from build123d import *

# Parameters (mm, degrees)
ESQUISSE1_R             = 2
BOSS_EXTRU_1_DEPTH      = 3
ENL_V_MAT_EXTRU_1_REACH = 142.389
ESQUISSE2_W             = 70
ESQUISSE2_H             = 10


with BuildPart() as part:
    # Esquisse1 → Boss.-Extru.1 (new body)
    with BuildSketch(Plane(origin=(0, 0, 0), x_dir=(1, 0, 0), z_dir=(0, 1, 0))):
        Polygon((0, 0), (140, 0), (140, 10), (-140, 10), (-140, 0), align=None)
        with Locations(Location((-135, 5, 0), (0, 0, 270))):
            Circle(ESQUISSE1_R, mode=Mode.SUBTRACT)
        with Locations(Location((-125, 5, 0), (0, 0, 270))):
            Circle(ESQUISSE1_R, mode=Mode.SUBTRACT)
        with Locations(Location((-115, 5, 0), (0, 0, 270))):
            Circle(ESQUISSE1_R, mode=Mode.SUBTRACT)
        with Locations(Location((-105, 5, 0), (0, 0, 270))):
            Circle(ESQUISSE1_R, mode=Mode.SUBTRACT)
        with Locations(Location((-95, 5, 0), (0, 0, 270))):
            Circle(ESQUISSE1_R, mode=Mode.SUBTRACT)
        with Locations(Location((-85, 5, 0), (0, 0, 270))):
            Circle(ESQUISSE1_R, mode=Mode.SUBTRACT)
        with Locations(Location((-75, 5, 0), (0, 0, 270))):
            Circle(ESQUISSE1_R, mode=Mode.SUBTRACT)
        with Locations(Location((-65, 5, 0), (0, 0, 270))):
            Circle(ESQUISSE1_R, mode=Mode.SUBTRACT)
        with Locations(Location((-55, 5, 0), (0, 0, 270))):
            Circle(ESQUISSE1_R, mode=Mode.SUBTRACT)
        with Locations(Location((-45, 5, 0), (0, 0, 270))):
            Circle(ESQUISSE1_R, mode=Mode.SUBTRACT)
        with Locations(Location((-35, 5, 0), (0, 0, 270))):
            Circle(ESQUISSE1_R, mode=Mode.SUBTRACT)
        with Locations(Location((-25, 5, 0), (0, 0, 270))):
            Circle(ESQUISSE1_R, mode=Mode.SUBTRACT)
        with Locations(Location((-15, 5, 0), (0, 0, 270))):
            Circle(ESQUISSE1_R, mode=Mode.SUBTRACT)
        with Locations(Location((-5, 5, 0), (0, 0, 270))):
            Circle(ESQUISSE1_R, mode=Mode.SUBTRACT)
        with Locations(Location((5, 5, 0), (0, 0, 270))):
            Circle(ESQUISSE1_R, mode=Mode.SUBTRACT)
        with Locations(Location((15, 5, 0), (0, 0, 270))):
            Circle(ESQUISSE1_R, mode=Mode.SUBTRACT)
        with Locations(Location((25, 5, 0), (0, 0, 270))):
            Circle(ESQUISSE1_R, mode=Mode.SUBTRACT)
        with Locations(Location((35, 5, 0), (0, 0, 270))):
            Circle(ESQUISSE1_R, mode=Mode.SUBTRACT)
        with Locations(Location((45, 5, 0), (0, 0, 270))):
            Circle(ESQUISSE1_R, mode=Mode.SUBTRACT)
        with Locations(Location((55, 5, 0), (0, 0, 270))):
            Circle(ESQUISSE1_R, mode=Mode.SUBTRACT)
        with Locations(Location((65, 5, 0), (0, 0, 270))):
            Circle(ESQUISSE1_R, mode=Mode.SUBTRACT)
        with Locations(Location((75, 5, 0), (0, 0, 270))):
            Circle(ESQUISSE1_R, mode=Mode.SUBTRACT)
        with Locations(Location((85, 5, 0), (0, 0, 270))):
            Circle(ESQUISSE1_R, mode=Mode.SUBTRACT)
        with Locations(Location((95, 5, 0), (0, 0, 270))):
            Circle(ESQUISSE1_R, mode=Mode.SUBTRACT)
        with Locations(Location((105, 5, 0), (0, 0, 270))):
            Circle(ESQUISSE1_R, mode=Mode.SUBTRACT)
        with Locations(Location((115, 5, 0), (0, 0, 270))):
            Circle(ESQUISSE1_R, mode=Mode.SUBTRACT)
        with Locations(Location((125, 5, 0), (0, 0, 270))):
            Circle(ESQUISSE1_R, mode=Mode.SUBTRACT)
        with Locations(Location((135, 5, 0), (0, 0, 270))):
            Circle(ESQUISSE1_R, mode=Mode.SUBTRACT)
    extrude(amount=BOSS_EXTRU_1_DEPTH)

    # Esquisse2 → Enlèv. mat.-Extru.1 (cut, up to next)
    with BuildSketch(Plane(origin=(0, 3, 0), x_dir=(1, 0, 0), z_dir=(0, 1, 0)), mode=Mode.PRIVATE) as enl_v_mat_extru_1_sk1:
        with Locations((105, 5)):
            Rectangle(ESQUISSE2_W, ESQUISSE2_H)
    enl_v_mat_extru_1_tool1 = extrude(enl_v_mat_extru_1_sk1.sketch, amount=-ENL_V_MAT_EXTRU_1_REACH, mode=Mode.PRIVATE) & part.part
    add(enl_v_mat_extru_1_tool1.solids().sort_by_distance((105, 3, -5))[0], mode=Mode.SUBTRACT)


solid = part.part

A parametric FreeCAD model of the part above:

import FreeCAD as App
import Part
import Sketcher

V = App.Vector


def add_polygon(sketch, points):
    """Adds a closed chain of lines whose ends are joined by coincident constraints."""
    first, n = sketch.GeometryCount, len(points)
    for a, b in zip(points, points[1:] + points[:1]):
        sketch.addGeometry(Part.LineSegment(App.Vector(*a, 0), App.Vector(*b, 0)), False)
    for i in range(n):
        sketch.addConstraint(Sketcher.Constraint("Coincident", first + i, 2, first + (i + 1) % n, 1))

doc = App.newDocument("Part")
body = doc.addObject("PartDesign::Body", "Body")

# Sketch on XZ plane
sketch1 = body.newObject("Sketcher::SketchObject", "Sketch")
sketch1.AttachmentSupport = (doc.getObject("XZ_Plane"), [""])
sketch1.MapMode = "FlatFace"
add_polygon(sketch1, [(140, 0), (140, -10), (-140, -10), (-140, 0)])  # lines 0-3
sketch1.addGeometry(Part.Circle(V(-135, -5, 0), V(0, 0, 1), 2), False)  # 4
sketch1.addGeometry(Part.Circle(V(-125, -5, 0), V(0, 0, 1), 2), False)  # 5
sketch1.addGeometry(Part.Circle(V(-115, -5, 0), V(0, 0, 1), 2), False)  # 6
sketch1.addGeometry(Part.Circle(V(-105, -5, 0), V(0, 0, 1), 2), False)  # 7
sketch1.addGeometry(Part.Circle(V(-95, -5, 0), V(0, 0, 1), 2), False)  # 8
sketch1.addGeometry(Part.Circle(V(-85, -5, 0), V(0, 0, 1), 2), False)  # 9
sketch1.addGeometry(Part.Circle(V(-75, -5, 0), V(0, 0, 1), 2), False)  # 10
sketch1.addGeometry(Part.Circle(V(-65, -5, 0), V(0, 0, 1), 2), False)  # 11
sketch1.addGeometry(Part.Circle(V(-55, -5, 0), V(0, 0, 1), 2), False)  # 12
sketch1.addGeometry(Part.Circle(V(-45, -5, 0), V(0, 0, 1), 2), False)  # 13
sketch1.addGeometry(Part.Circle(V(-35, -5, 0), V(0, 0, 1), 2), False)  # 14
sketch1.addGeometry(Part.Circle(V(-25, -5, 0), V(0, 0, 1), 2), False)  # 15
sketch1.addGeometry(Part.Circle(V(-15, -5, 0), V(0, 0, 1), 2), False)  # 16
sketch1.addGeometry(Part.Circle(V(-5, -5, 0), V(0, 0, 1), 2), False)  # 17
sketch1.addGeometry(Part.Circle(V(5, -5, 0), V(0, 0, 1), 2), False)  # 18
sketch1.addGeometry(Part.Circle(V(15, -5, 0), V(0, 0, 1), 2), False)  # 19
sketch1.addGeometry(Part.Circle(V(25, -5, 0), V(0, 0, 1), 2), False)  # 20
sketch1.addGeometry(Part.Circle(V(35, -5, 0), V(0, 0, 1), 2), False)  # 21
sketch1.addGeometry(Part.Circle(V(45, -5, 0), V(0, 0, 1), 2), False)  # 22
sketch1.addGeometry(Part.Circle(V(55, -5, 0), V(0, 0, 1), 2), False)  # 23
sketch1.addGeometry(Part.Circle(V(65, -5, 0), V(0, 0, 1), 2), False)  # 24
sketch1.addGeometry(Part.Circle(V(75, -5, 0), V(0, 0, 1), 2), False)  # 25
sketch1.addGeometry(Part.Circle(V(85, -5, 0), V(0, 0, 1), 2), False)  # 26
sketch1.addGeometry(Part.Circle(V(95, -5, 0), V(0, 0, 1), 2), False)  # 27
sketch1.addGeometry(Part.Circle(V(105, -5, 0), V(0, 0, 1), 2), False)  # 28
sketch1.addGeometry(Part.Circle(V(115, -5, 0), V(0, 0, 1), 2), False)  # 29
sketch1.addGeometry(Part.Circle(V(125, -5, 0), V(0, 0, 1), 2), False)  # 30
sketch1.addGeometry(Part.Circle(V(135, -5, 0), V(0, 0, 1), 2), False)  # 31
sketch1.addConstraint([
    Sketcher.Constraint("Vertical", 0),
    Sketcher.Constraint("Horizontal", 1),
    Sketcher.Constraint("Vertical", 2),
    Sketcher.Constraint("Horizontal", 3),
    Sketcher.Constraint("Equal", 4, 5),
    Sketcher.Constraint("Equal", 5, 6),
    Sketcher.Constraint("Equal", 6, 7),
    Sketcher.Constraint("Equal", 7, 8),
    Sketcher.Constraint("Equal", 8, 9),
    Sketcher.Constraint("Equal", 9, 10),
    Sketcher.Constraint("Equal", 10, 11),
    Sketcher.Constraint("Equal", 11, 12),
    Sketcher.Constraint("Equal", 12, 13),
    Sketcher.Constraint("Equal", 13, 14),
    Sketcher.Constraint("Equal", 14, 15),
    Sketcher.Constraint("Equal", 15, 16),
    Sketcher.Constraint("Equal", 16, 17),
    Sketcher.Constraint("Equal", 17, 18),
    Sketcher.Constraint("Equal", 18, 19),
    Sketcher.Constraint("Equal", 19, 20),
    Sketcher.Constraint("Equal", 20, 21),
    Sketcher.Constraint("Equal", 21, 22),
    Sketcher.Constraint("Equal", 22, 23),
    Sketcher.Constraint("Equal", 23, 24),
    Sketcher.Constraint("Equal", 24, 25),
    Sketcher.Constraint("Equal", 25, 26),
    Sketcher.Constraint("Equal", 26, 27),
    Sketcher.Constraint("Equal", 27, 28),
    Sketcher.Constraint("Equal", 28, 29),
    Sketcher.Constraint("Equal", 29, 30),
    Sketcher.Constraint("Equal", 30, 31),
    Sketcher.Constraint("Symmetric", 2, 2, 3, 2, -1, 1),
    Sketcher.Constraint("Symmetric", 17, 3, 18, 3, -2),
    Sketcher.Constraint("Symmetric", 16, 3, 19, 3, -2),
    Sketcher.Constraint("Symmetric", 15, 3, 20, 3, -2),
    Sketcher.Constraint("Symmetric", 14, 3, 21, 3, -2),
    Sketcher.Constraint("Symmetric", 13, 3, 22, 3, -2),
    Sketcher.Constraint("Symmetric", 12, 3, 23, 3, -2),
    Sketcher.Constraint("Symmetric", 11, 3, 24, 3, -2),
    Sketcher.Constraint("Symmetric", 10, 3, 25, 3, -2),
    Sketcher.Constraint("Symmetric", 9, 3, 26, 3, -2),
    Sketcher.Constraint("Symmetric", 8, 3, 27, 3, -2),
    Sketcher.Constraint("Symmetric", 7, 3, 28, 3, -2),
    Sketcher.Constraint("Symmetric", 6, 3, 29, 3, -2),
    Sketcher.Constraint("Symmetric", 5, 3, 30, 3, -2),
    Sketcher.Constraint("Symmetric", 4, 3, 31, 3, -2),
    Sketcher.Constraint("Horizontal", 4, 3, 5, 3),
    Sketcher.Constraint("Horizontal", 5, 3, 6, 3),
    Sketcher.Constraint("Horizontal", 6, 3, 7, 3),
    Sketcher.Constraint("Horizontal", 7, 3, 8, 3),
    Sketcher.Constraint("Horizontal", 8, 3, 9, 3),
    Sketcher.Constraint("Horizontal", 9, 3, 10, 3),
    Sketcher.Constraint("Horizontal", 10, 3, 11, 3),
    Sketcher.Constraint("Horizontal", 11, 3, 12, 3),
    Sketcher.Constraint("Horizontal", 12, 3, 13, 3),
    Sketcher.Constraint("Horizontal", 13, 3, 14, 3),
    Sketcher.Constraint("Horizontal", 14, 3, 15, 3),
    Sketcher.Constraint("Horizontal", 15, 3, 16, 3),
    Sketcher.Constraint("Horizontal", 16, 3, 17, 3),
    Sketcher.Constraint("Diameter", 4, 4.0),
    Sketcher.Constraint("DistanceX", 1, 2, 1, 1, 280.0),
    Sketcher.Constraint("DistanceY", 0, 2, 0, 1, 10.0),
    Sketcher.Constraint("DistanceX", 4, 3, -1, 1, 135.0),
    Sketcher.Constraint("DistanceY", 4, 3, -1, 1, 5.0),
    Sketcher.Constraint("DistanceX", 5, 3, -1, 1, 125.0),
    Sketcher.Constraint("DistanceX", 6, 3, -1, 1, 115.0),
    Sketcher.Constraint("DistanceX", 7, 3, -1, 1, 105.0),
    Sketcher.Constraint("DistanceX", 8, 3, -1, 1, 95.0),
    Sketcher.Constraint("DistanceX", 9, 3, -1, 1, 85.0),
    Sketcher.Constraint("DistanceX", 10, 3, -1, 1, 75.0),
    Sketcher.Constraint("DistanceX", 11, 3, -1, 1, 65.0),
    Sketcher.Constraint("DistanceX", 12, 3, -1, 1, 55.0),
    Sketcher.Constraint("DistanceX", 13, 3, -1, 1, 45.0),
    Sketcher.Constraint("DistanceX", 14, 3, -1, 1, 35.0),
    Sketcher.Constraint("DistanceX", 15, 3, -1, 1, 25.0),
    Sketcher.Constraint("DistanceX", 16, 3, -1, 1, 15.0),
    Sketcher.Constraint("DistanceX", 17, 3, -1, 1, 5.0),
])
pad1 = body.newObject("PartDesign::Pad", "Pad")
pad1.Profile = sketch1
pad1.Length = 3
pad1.Reversed = True

# Sketch on XZ plane
sketch2 = body.newObject("Sketcher::SketchObject", "Sketch001")
sketch2.AttachmentSupport = (doc.getObject("XZ_Plane"), [""])
sketch2.MapMode = "FlatFace"
sketch2.AttachmentOffset = App.Placement(V(0, 0, -3), App.Rotation())
add_polygon(sketch2, [(70, -10), (70, 0), (140, 0), (140, -10)])  # lines 0-3
sketch2.addConstraint([
    Sketcher.Constraint("Vertical", 0),
    Sketcher.Constraint("Horizontal", 1),
    Sketcher.Constraint("Vertical", 2),
    Sketcher.Constraint("Horizontal", 3),
    Sketcher.Constraint("PointOnObject", 0, 2, -1),
    Sketcher.Constraint("DistanceX", 1, 1, 1, 2, 70.0),
    Sketcher.Constraint("DistanceY", 0, 1, 0, 2, 10.0),
    Sketcher.Constraint("DistanceX", -1, 1, 0, 2, 70.0),
])
pocket1 = body.newObject("PartDesign::Pocket", "Pocket")
pocket1.Profile = sketch2
pocket1.Length = 3
pocket1.Reversed = True

doc.recompute()
